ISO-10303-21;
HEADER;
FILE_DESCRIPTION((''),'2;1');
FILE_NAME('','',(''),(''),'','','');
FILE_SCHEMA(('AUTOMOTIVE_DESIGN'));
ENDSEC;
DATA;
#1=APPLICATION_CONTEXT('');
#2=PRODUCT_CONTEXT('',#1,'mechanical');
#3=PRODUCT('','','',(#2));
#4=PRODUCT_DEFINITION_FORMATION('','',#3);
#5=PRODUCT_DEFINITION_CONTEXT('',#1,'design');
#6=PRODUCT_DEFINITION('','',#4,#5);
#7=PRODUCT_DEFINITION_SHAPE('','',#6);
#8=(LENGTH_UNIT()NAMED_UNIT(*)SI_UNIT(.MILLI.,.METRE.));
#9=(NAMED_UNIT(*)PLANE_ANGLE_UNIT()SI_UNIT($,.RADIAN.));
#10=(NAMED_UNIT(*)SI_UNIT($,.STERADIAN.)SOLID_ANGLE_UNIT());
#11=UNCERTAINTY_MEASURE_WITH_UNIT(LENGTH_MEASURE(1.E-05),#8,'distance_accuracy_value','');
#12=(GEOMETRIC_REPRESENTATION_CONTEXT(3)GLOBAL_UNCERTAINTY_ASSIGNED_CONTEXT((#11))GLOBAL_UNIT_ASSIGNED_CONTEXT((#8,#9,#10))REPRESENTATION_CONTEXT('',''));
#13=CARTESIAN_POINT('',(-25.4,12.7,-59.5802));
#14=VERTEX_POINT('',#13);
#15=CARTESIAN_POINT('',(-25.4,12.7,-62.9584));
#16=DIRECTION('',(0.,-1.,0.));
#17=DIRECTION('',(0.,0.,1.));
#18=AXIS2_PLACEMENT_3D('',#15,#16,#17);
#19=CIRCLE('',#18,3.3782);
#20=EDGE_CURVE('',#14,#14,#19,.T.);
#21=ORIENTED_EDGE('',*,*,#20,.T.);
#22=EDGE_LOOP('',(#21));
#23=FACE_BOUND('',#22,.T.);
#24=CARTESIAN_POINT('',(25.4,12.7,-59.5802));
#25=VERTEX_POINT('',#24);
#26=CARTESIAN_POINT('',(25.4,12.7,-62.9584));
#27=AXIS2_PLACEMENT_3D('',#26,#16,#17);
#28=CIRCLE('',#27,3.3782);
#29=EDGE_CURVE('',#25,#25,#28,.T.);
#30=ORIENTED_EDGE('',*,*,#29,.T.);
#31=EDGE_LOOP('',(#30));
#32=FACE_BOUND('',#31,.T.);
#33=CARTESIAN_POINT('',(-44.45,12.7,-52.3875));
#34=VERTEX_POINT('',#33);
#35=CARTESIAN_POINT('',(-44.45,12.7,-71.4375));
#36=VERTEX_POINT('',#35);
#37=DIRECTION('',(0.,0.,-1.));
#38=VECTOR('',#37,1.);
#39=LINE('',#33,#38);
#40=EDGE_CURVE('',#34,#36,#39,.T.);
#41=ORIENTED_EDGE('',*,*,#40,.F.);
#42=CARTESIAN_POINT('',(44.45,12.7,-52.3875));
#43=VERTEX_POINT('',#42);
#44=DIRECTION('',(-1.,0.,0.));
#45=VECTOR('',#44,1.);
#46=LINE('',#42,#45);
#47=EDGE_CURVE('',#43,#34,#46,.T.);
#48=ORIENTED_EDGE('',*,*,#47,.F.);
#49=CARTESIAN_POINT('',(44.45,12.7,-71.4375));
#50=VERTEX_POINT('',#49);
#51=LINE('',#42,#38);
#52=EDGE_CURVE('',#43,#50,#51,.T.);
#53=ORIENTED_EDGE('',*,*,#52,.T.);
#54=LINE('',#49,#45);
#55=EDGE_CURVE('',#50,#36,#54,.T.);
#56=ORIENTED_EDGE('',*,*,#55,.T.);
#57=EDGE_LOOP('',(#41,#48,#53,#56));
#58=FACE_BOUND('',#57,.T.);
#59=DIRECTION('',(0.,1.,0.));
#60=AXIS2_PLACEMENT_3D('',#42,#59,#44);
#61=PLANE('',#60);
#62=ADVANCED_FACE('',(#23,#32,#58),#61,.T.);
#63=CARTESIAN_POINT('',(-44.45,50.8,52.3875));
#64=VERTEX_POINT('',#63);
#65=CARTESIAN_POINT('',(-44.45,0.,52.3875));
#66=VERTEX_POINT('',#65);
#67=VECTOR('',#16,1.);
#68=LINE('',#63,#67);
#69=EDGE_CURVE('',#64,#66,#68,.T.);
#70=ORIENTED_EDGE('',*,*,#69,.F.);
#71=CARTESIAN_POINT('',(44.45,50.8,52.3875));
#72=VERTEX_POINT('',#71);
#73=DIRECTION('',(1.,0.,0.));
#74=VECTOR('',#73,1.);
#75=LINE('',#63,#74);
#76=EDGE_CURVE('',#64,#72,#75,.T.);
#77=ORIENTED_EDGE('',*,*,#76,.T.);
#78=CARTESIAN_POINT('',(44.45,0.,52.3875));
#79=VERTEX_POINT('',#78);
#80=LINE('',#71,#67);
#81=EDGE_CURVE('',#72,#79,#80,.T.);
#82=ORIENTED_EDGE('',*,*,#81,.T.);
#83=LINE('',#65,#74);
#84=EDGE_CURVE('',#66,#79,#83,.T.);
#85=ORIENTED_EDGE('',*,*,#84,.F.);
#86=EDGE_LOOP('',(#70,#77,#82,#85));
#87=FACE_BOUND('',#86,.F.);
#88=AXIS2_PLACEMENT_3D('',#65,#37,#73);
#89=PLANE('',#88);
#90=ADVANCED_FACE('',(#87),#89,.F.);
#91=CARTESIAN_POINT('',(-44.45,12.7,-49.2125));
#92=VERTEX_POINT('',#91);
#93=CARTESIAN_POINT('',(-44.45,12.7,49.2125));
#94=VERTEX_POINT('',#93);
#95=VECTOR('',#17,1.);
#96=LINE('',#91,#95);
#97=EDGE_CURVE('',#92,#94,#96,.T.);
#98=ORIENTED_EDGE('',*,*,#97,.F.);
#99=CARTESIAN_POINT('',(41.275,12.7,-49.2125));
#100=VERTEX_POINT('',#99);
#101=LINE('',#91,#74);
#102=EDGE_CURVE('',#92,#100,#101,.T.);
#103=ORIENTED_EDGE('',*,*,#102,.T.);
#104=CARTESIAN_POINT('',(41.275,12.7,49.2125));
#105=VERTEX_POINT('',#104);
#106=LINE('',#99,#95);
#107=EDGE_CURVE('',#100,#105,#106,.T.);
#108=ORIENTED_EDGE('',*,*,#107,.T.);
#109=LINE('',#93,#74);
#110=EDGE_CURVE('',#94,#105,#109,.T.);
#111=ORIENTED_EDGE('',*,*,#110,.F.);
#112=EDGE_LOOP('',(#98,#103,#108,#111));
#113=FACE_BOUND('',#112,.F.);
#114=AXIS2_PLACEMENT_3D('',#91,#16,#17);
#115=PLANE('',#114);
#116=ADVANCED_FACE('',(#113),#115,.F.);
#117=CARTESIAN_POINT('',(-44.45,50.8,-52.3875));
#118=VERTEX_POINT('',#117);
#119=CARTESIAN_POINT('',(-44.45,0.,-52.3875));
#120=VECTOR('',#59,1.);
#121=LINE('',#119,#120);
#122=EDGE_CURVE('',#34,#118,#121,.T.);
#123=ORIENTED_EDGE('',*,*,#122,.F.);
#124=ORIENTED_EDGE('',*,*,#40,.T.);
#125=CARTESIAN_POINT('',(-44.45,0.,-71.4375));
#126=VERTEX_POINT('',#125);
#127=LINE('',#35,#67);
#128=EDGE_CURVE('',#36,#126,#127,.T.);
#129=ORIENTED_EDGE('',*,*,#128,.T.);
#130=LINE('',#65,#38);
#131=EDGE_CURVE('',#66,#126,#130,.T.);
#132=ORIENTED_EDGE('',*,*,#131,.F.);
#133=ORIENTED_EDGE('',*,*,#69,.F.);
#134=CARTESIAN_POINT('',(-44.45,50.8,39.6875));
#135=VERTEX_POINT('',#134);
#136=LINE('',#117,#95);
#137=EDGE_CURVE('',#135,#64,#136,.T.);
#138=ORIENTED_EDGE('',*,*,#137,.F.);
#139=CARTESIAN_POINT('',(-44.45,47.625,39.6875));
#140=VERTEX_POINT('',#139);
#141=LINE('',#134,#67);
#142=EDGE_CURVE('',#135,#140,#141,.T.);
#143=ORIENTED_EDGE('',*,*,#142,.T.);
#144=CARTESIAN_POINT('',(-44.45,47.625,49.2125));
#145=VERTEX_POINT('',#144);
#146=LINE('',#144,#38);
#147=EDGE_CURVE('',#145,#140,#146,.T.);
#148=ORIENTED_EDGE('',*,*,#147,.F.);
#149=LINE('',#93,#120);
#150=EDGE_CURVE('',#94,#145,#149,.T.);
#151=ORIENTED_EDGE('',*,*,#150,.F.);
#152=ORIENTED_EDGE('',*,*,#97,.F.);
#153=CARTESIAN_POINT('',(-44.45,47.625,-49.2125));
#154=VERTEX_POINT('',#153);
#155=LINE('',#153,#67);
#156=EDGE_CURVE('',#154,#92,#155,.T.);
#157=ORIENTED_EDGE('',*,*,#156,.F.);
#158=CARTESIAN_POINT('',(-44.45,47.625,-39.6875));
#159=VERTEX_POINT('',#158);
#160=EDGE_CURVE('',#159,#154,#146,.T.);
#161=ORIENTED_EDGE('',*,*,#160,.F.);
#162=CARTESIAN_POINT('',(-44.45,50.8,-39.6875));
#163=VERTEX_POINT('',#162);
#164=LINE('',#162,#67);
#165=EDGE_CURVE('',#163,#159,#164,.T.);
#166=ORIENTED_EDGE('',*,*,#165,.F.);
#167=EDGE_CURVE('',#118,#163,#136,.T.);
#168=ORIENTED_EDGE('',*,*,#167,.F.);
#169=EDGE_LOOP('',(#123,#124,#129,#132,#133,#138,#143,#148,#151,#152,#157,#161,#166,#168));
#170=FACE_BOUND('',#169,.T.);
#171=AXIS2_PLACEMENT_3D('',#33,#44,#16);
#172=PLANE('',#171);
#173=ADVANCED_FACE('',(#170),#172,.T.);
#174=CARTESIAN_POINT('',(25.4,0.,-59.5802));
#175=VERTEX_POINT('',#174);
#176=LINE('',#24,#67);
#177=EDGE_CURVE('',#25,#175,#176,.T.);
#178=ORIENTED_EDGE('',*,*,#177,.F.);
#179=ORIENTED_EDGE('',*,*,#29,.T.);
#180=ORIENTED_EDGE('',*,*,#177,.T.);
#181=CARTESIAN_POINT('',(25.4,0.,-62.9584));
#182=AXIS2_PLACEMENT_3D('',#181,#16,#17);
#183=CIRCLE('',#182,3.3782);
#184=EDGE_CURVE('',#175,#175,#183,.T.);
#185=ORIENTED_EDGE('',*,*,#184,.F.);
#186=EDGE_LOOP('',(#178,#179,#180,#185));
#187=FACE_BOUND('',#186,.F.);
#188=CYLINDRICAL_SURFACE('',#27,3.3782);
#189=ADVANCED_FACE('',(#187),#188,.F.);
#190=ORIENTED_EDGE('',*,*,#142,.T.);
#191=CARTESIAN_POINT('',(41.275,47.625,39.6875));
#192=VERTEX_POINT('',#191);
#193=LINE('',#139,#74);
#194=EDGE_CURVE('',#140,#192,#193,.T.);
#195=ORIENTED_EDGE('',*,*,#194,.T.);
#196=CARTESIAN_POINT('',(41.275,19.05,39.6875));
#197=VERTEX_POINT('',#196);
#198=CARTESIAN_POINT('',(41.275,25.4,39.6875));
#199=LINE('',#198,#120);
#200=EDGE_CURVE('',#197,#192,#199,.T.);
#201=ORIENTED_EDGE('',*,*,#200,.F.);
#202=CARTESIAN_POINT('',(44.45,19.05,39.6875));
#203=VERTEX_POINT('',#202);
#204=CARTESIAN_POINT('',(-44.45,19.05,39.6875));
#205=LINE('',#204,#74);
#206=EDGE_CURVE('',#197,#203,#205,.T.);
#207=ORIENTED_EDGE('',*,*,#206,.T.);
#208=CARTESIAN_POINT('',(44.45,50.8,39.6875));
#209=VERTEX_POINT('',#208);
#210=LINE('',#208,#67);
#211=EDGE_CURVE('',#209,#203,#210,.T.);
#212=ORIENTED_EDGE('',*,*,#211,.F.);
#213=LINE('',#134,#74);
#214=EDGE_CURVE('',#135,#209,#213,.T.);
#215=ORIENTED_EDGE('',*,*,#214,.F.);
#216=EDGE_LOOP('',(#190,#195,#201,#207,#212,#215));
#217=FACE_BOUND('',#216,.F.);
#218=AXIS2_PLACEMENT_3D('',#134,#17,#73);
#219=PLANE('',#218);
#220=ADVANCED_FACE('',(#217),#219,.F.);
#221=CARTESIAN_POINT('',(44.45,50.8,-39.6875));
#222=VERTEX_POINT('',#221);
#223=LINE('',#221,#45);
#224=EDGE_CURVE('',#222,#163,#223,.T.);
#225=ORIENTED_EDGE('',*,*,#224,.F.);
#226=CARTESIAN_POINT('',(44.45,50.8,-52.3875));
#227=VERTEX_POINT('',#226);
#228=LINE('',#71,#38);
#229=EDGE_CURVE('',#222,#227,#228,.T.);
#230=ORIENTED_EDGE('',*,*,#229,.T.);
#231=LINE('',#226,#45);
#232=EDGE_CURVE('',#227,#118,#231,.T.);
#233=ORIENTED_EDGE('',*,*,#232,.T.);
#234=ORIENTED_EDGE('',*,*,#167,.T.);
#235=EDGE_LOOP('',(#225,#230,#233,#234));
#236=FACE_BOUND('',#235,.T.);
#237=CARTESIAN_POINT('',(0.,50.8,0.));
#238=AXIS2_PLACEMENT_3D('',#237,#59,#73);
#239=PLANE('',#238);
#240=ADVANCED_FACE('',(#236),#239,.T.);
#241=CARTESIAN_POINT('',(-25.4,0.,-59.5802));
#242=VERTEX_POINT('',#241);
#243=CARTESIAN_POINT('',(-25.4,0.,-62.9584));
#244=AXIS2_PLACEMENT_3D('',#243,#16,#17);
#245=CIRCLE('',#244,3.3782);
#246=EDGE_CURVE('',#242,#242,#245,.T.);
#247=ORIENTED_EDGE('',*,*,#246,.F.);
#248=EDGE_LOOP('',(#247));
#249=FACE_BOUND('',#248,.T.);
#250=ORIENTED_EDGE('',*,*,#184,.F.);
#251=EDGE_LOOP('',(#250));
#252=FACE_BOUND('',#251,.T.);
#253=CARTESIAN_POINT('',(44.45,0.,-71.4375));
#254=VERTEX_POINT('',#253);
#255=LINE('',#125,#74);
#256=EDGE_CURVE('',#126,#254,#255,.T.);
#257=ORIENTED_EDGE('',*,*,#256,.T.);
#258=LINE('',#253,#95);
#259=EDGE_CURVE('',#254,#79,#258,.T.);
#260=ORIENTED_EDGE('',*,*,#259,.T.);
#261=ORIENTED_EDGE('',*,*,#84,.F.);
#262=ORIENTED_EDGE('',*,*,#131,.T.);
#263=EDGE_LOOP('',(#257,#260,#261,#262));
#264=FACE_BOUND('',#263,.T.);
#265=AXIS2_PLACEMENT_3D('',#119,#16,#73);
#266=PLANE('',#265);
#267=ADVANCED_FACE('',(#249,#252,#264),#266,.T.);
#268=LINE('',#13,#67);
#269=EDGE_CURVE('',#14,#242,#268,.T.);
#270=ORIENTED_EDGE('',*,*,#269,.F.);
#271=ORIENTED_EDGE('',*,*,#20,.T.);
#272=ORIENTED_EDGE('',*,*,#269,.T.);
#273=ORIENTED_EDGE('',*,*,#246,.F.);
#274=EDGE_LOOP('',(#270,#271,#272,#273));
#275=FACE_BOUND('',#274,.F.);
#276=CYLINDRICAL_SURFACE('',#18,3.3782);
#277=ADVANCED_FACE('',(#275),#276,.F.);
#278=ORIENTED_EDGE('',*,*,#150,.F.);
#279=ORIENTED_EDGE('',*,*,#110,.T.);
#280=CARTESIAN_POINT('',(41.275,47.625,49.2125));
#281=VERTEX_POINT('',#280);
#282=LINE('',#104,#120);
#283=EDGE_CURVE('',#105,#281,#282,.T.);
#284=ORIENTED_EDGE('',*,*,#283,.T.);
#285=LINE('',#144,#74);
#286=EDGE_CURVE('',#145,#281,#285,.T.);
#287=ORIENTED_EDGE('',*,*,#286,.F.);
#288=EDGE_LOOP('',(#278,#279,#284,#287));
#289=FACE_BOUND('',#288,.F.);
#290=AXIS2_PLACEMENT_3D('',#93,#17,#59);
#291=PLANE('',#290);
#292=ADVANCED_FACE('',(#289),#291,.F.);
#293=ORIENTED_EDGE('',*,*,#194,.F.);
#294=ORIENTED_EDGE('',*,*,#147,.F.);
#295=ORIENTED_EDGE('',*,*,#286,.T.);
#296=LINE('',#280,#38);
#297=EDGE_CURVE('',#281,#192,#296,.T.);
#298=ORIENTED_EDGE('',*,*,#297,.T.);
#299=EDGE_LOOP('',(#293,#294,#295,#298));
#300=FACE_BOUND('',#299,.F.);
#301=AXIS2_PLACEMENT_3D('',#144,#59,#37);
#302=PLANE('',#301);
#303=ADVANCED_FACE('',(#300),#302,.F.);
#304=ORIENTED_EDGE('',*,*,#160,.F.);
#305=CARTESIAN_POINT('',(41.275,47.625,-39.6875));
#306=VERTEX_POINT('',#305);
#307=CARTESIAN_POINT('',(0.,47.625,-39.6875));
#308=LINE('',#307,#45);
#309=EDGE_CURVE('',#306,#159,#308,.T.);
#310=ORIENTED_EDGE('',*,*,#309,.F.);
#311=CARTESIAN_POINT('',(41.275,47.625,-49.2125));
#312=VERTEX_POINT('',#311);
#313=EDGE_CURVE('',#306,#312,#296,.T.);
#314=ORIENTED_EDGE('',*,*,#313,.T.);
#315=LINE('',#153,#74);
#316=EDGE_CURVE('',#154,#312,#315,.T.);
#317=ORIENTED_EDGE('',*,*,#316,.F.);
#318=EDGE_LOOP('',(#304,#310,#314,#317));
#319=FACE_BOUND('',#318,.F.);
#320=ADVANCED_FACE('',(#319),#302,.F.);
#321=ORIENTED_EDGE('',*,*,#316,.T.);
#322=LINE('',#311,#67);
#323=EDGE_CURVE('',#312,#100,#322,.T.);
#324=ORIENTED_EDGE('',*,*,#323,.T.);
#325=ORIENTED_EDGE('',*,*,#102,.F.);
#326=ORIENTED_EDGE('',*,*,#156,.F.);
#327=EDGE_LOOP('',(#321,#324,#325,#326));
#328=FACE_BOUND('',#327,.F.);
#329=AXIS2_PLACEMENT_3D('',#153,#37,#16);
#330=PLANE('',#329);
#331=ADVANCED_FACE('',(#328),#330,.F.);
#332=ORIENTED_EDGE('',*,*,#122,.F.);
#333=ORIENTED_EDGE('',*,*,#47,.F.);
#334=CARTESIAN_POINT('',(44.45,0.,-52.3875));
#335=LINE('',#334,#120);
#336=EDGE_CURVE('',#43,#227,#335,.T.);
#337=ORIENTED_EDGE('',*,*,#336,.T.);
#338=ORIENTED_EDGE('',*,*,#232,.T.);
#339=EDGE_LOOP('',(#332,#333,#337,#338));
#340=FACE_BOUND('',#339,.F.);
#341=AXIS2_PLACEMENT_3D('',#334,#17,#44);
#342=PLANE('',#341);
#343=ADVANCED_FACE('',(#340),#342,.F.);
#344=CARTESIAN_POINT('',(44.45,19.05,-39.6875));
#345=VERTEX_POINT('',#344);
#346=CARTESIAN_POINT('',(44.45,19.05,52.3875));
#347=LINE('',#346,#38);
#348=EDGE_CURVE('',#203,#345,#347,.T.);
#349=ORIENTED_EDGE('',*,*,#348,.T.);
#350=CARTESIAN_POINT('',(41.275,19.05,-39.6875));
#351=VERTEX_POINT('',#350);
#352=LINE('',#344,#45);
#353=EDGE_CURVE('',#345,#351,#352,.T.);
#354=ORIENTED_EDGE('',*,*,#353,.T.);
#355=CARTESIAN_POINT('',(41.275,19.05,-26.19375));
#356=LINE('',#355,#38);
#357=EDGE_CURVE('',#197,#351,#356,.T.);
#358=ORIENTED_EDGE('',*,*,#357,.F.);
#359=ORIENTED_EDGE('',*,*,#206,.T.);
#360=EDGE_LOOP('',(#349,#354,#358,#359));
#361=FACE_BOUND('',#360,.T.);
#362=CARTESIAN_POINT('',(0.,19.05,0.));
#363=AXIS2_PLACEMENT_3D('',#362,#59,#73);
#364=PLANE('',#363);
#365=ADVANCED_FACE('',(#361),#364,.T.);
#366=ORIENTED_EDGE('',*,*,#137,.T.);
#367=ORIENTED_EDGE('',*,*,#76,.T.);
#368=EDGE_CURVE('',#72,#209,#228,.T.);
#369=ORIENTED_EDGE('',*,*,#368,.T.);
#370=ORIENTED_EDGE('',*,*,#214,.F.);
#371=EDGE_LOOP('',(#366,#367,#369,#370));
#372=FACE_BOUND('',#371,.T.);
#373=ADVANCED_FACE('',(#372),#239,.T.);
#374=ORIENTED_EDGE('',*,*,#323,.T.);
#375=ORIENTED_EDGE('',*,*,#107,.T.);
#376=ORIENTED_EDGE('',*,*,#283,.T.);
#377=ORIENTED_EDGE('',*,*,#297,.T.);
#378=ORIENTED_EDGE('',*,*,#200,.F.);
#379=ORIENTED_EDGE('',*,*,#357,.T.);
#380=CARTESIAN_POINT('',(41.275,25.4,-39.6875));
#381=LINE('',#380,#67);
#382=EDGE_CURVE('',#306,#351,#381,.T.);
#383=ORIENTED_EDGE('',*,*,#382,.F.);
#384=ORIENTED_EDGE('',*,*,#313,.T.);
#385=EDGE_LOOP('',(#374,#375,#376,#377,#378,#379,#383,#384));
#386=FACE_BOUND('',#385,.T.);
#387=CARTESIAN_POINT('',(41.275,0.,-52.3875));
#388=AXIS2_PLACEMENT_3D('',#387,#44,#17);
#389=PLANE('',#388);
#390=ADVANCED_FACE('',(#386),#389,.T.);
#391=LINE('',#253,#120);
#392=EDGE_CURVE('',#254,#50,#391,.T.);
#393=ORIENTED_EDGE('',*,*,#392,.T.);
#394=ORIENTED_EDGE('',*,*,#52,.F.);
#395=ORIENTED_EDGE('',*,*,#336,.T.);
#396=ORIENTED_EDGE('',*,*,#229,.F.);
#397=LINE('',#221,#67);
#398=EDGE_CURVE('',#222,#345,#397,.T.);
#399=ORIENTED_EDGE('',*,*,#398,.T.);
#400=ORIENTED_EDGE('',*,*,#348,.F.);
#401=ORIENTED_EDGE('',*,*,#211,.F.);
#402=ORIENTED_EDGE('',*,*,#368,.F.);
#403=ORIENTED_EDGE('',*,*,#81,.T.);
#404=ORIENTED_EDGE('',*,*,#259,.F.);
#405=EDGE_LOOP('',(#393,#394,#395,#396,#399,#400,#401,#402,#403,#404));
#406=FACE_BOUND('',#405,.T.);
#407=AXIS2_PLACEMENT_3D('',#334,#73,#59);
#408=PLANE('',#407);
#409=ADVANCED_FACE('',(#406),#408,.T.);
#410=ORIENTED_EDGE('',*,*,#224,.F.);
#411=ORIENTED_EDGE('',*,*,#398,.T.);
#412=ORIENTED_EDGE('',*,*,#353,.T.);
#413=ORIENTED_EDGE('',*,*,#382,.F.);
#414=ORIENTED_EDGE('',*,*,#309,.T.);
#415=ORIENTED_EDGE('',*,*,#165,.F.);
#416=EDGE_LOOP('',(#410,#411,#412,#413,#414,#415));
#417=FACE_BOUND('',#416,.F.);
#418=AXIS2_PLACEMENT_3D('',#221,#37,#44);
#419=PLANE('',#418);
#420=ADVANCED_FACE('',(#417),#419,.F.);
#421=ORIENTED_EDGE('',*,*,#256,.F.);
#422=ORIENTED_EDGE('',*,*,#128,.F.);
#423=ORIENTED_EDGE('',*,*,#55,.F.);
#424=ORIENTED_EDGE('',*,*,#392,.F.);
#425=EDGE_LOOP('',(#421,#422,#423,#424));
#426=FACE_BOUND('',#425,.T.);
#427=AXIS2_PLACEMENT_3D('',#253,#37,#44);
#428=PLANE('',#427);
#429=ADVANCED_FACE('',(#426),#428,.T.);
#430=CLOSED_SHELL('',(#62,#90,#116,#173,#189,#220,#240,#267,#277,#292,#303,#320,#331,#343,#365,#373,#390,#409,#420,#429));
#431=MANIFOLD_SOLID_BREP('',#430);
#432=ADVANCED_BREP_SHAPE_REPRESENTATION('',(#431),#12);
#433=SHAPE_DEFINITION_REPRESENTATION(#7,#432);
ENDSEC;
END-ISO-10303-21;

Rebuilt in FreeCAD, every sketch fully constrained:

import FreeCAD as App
import Part
import Sketcher
from FreeCAD import Vector
Q = App.Units.Quantity


def add_polygon(sketch, points):
    """Adds a closed chain of lines whose ends are joined by coincident constraints."""
    first, n = sketch.GeometryCount, len(points)
    for a, b in zip(points, points[1:] + points[:1]):
        sketch.addGeometry(Part.LineSegment(App.Vector(*a, 0), App.Vector(*b, 0)), False)
    for i in range(n):
        sketch.addConstraint(Sketcher.Constraint("Coincident", first + i, 2, first + (i + 1) % n, 1))

doc = App.newDocument("Part")
body = doc.addObject("PartDesign::Body", "Body")

# Sketch on XZ plane
sketch1 = doc.addObject("Sketcher::SketchObject", "Sketch")
body.addObject(sketch1)
sketch1.AttachmentSupport = (doc.XZ_Plane, [""])
sketch1.MapMode = "FlatFace"
add_polygon(sketch1, [(44, 52), (44, -52), (-44, -52), (-44, 52)])  # lines 0-3
sketch1.addConstraint(Sketcher.Constraint("Vertical", 0))
sketch1.addConstraint(Sketcher.Constraint("Horizontal", 1))
sketch1.addConstraint(Sketcher.Constraint("Vertical", 2))
sketch1.addConstraint(Sketcher.Constraint("Horizontal", 3))
sketch1.addConstraint(Sketcher.Constraint("Symmetric", 0, 2, 2, 2, -1, 1))
sketch1.addConstraint(Sketcher.Constraint("DistanceX", 1, 2, 1, 1, Q("3.5 in")))
sketch1.addConstraint(Sketcher.Constraint("DistanceY", 0, 2, 0, 1, Q("4.125 in")))
pad1 = doc.addObject("PartDesign::Pad", "Pad")
body.addObject(pad1)
pad1.Profile = sketch1
pad1.Length = Q("0.5 in")
pad1.Reversed = True

# Sketch on XZ plane
sketch2 = doc.addObject("Sketcher::SketchObject", "Sketch001")
body.addObject(sketch2)
sketch2.AttachmentSupport = (doc.XZ_Plane, [""])
sketch2.MapMode = "FlatFace"
sketch2.AttachmentOffset = App.Placement(Vector(0, 0, -0.5 * 25.4), App.Rotation())
add_polygon(sketch2, [(44, 52), (44, -52), (-44, -52), (-44, 52)])  # lines 0-3
sketch2.addConstraint(Sketcher.Constraint("Vertical", 0))
sketch2.addConstraint(Sketcher.Constraint("Horizontal", 1))
sketch2.addConstraint(Sketcher.Constraint("Vertical", 2))
sketch2.addConstraint(Sketcher.Constraint("Horizontal", 3))
sketch2.addConstraint(Sketcher.Constraint("Symmetric", 0, 2, 2, 2, -1, 1))
sketch2.addConstraint(Sketcher.Constraint("DistanceY", 0, 2, 0, 1, Q("4.125 in")))
sketch2.addConstraint(Sketcher.Constraint("DistanceX", 1, 2, 1, 1, Q("3.5 in")))
pad2 = doc.addObject("PartDesign::Pad", "Pad001")
body.addObject(pad2)
pad2.Profile = sketch2
pad2.Length = Q("1.5 in")
pad2.Reversed = True

# Sketch on YZ plane
sketch3 = doc.addObject("Sketcher::SketchObject", "Sketch002")
body.addObject(sketch3)
sketch3.AttachmentSupport = (doc.YZ_Plane, [""])
sketch3.MapMode = "FlatFace"
sketch3.AttachmentOffset = App.Placement(Vector(0, 0, -1.75 * 25.4), App.Rotation())
add_polygon(sketch3, [(13, 49), (48, 49), (48, -49), (13, -49)])  # lines 0-3
sketch3.addConstraint(Sketcher.Constraint("Horizontal", 0))
sketch3.addConstraint(Sketcher.Constraint("Vertical", 1))
sketch3.addConstraint(Sketcher.Constraint("Horizontal", 2))
sketch3.addConstraint(Sketcher.Constraint("Vertical", 3))
sketch3.addConstraint(Sketcher.Constraint("DistanceX", -1, 1, 2, 2, Q("0.5 in")))
sketch3.addConstraint(Sketcher.Constraint("DistanceX", 0, 1, 0, 2, Q("1.375 in")))
sketch3.addConstraint(Sketcher.Constraint("DistanceY", 1, 2, 1, 1, Q("3.875 in")))
sketch3.addConstraint(Sketcher.Constraint("DistanceY", -1, 1, 0, 2, Q("1.9375 in")))
pocket1 = doc.addObject("PartDesign::Pocket", "Pocket")
body.addObject(pocket1)
pocket1.Profile = sketch3
pocket1.Length = Q("3.375 in")
pocket1.Reversed = True

# Sketch on XZ plane
sketch4 = doc.addObject("Sketcher::SketchObject", "Sketch003")
body.addObject(sketch4)
sketch4.AttachmentSupport = (doc.XZ_Plane, [""])
sketch4.MapMode = "FlatFace"
sketch4.AttachmentOffset = App.Placement(Vector(0, 0, -2 * 25.4), App.Rotation())
add_polygon(sketch4, [(44, -40), (-44, -40), (-44, 40), (44, 40)])  # lines 0-3
sketch4.addConstraint(Sketcher.Constraint("Horizontal", 0))
sketch4.addConstraint(Sketcher.Constraint("Vertical", 1))
sketch4.addConstraint(Sketcher.Constraint("Horizontal", 2))
sketch4.addConstraint(Sketcher.Constraint("Vertical", 3))
sketch4.addConstraint(Sketcher.Constraint("Symmetric", 0, 2, 2, 2, -1, 1))
sketch4.addConstraint(Sketcher.Constraint("DistanceX", 0, 2, 0, 1, Q("3.5 in")))
sketch4.addConstraint(Sketcher.Constraint("DistanceY", 1, 1, 1, 2, Q("3.125 in")))
pocket2 = doc.addObject("PartDesign::Pocket", "Pocket001")
body.addObject(pocket2)
pocket2.Profile = sketch4
pocket2.Length = Q("1.25 in")
pocket2.Reversed = True

# Sketch on XY plane
sketch5 = doc.addObject("Sketcher::SketchObject", "Sketch004")
body.addObject(sketch5)
sketch5.AttachmentSupport = (doc.XY_Plane, [""])
sketch5.MapMode = "FlatFace"
sketch5.AttachmentOffset = App.Placement(Vector(0, 0, -2.0625 * 25.4), App.Rotation())
add_polygon(sketch5, [(44, 0), (-44, 0), (-44, 13), (44, 13)])  # lines 0-3
sketch5.addConstraint(Sketcher.Constraint("Horizontal", 0))
sketch5.addConstraint(Sketcher.Constraint("Vertical", 1))
sketch5.addConstraint(Sketcher.Constraint("Horizontal", 2))
sketch5.addConstraint(Sketcher.Constraint("Vertical", 3))
sketch5.addConstraint(Sketcher.Constraint("Symmetric", 0, 2, 3, 2, -1, 1))
sketch5.addConstraint(Sketcher.Constraint("DistanceY", 1, 1, 1, 2, Q("0.5 in")))
sketch5.addConstraint(Sketcher.Constraint("DistanceX", 0, 2, 0, 1, Q("3.5 in")))
pad3 = doc.addObject("PartDesign::Pad", "Pad002")
body.addObject(pad3)
pad3.Profile = sketch5
pad3.Length = Q("0.75 in")
pad3.Reversed = True

# Sketch on XZ plane
sketch6 = doc.addObject("Sketcher::SketchObject", "Sketch005")
body.addObject(sketch6)
sketch6.AttachmentSupport = (doc.XZ_Plane, [""])
sketch6.MapMode = "FlatFace"
sketch6.AttachmentOffset = App.Placement(Vector(0, 0, -0.5 * 25.4), App.Rotation())
sketch6.addGeometry(Part.Circle(Vector(-25.4, -63, 0), Vector(0, 0, 1), 3.4), False)
sketch6.addGeometry(Part.Circle(Vector(25.4, -63, 0), Vector(0, 0, 1), 3.4), False)
sketch6.addConstraint(Sketcher.Constraint("Equal", 0, 1))
sketch6.addConstraint(Sketcher.Constraint("Symmetric", 0, 3, 1, 3, -2))
sketch6.addConstraint(Sketcher.Constraint("Diameter", 0, Q("0.266 in")))
sketch6.addConstraint(Sketcher.Constraint("DistanceX", 0, 3, -1, 1, Q("1 in")))
sketch6.addConstraint(Sketcher.Constraint("DistanceY", 0, 3, -1, 1, Q("62.9584 mm")))
doc.recompute()
hole = doc.addObject("PartDesign::Hole", "Hole")
body.addObject(hole)
hole.Profile = sketch6
hole.ThreadType = "None"
hole.Diameter = Q("0.266 in")
hole.DepthType = "ThroughAll"
hole.Reversed = True

doc.recompute()
